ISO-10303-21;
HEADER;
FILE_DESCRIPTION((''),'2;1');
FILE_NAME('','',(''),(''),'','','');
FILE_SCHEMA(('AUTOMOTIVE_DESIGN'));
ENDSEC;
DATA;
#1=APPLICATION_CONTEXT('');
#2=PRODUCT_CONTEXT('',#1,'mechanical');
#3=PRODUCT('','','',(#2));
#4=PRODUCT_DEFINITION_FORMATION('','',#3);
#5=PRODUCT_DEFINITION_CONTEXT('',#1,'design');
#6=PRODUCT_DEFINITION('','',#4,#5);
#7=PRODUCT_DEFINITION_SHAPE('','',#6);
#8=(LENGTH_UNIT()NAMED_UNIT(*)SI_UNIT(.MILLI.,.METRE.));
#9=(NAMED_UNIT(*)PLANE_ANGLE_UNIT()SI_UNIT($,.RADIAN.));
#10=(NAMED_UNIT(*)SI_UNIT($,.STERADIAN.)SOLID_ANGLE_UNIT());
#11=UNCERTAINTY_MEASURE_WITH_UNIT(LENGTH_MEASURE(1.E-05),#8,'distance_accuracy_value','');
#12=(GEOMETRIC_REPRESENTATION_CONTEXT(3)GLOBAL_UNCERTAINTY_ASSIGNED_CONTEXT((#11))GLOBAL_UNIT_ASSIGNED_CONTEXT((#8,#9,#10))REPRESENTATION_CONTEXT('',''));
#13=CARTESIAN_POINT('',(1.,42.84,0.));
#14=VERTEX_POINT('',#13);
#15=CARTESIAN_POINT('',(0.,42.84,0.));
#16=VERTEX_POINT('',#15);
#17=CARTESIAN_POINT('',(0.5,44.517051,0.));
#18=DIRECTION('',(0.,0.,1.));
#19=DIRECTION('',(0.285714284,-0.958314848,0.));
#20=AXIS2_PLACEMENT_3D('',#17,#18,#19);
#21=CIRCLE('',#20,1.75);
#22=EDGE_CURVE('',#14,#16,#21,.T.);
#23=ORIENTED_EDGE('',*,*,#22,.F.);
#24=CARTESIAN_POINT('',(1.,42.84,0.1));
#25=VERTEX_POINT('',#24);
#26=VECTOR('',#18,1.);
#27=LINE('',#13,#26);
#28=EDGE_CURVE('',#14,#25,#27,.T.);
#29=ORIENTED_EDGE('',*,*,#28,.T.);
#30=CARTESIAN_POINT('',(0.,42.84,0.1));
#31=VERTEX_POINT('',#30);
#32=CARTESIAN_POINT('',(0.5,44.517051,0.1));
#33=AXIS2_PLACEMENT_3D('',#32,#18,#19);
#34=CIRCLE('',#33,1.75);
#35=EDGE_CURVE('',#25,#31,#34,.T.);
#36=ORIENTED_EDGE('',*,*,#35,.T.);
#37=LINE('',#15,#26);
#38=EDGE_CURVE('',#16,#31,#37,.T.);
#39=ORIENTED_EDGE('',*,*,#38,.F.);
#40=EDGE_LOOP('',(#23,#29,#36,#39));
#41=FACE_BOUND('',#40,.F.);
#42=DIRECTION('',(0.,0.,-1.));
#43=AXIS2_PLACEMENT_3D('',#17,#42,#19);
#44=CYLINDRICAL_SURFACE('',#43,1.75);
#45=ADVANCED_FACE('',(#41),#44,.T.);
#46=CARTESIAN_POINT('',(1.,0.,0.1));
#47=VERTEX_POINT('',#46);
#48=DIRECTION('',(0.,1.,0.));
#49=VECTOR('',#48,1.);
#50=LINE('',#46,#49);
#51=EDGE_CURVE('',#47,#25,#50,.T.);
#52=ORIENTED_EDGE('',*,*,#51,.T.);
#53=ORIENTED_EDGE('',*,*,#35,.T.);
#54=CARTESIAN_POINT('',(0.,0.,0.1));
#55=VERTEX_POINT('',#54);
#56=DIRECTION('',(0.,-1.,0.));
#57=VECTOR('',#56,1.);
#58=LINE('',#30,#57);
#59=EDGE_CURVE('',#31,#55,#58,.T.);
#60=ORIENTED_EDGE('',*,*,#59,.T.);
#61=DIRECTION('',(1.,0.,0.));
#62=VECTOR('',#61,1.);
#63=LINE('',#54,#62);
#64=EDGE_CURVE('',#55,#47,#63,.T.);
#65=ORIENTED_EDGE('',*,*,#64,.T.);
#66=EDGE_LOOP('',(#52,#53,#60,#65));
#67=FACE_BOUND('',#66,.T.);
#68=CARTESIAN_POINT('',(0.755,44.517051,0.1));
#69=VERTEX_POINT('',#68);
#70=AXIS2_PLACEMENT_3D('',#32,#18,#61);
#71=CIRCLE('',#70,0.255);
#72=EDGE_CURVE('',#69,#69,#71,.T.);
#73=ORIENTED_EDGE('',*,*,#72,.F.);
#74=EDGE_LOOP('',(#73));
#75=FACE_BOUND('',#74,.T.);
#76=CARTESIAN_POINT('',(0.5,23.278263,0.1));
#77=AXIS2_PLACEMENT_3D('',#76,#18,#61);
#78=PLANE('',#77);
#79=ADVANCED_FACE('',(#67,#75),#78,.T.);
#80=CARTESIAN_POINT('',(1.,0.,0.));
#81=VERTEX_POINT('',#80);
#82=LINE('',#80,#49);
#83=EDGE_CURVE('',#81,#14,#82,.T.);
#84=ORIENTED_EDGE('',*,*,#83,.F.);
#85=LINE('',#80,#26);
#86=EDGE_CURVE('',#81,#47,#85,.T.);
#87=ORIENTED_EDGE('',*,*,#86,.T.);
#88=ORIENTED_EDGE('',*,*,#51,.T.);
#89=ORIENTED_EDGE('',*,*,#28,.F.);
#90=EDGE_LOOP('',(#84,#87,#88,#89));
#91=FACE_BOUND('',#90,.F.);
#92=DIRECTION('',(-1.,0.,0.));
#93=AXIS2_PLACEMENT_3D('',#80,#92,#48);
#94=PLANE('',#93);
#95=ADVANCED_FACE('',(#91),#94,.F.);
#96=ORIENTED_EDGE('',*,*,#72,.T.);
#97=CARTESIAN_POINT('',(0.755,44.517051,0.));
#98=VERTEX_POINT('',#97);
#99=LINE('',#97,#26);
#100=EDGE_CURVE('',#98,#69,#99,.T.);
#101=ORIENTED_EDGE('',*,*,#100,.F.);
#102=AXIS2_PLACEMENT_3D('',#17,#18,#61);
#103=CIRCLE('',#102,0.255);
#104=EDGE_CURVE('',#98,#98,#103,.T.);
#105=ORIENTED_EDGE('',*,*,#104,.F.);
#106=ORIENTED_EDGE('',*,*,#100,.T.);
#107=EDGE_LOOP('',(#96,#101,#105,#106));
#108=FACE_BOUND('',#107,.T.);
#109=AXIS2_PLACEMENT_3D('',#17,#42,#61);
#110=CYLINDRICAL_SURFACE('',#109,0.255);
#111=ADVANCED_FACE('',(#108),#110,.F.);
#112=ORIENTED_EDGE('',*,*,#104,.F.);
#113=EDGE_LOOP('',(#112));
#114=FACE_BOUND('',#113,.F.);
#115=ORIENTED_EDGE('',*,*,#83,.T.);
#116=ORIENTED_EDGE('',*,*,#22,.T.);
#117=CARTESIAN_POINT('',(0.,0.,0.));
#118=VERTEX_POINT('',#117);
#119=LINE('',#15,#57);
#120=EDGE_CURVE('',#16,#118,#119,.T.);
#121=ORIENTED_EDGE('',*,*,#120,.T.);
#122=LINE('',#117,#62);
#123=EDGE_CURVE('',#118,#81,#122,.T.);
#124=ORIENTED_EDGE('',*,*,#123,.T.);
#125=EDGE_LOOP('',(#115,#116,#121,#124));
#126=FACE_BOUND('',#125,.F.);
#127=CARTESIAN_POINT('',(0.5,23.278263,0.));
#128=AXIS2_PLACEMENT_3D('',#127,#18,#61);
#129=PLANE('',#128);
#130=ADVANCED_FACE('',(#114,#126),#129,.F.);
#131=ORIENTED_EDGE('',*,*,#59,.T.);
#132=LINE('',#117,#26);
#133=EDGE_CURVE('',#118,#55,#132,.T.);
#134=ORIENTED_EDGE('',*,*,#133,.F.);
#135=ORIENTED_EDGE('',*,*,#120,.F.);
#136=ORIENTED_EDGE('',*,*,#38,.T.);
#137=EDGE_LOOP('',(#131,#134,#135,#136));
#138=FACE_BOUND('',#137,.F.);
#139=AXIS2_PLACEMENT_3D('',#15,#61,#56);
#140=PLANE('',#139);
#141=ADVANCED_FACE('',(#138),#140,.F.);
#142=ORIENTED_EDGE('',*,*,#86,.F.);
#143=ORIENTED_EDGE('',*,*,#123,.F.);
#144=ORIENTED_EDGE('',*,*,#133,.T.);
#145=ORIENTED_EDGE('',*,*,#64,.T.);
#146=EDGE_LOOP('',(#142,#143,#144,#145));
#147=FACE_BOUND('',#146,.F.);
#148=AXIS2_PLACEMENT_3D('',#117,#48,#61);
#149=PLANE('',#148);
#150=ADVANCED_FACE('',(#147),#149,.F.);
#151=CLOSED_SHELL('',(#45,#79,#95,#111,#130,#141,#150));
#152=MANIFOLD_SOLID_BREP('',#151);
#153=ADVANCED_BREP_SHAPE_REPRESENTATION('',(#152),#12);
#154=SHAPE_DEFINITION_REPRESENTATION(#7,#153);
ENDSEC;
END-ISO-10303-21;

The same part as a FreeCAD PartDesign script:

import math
import FreeCAD as App
import Part
import Sketcher

doc = App.newDocument("Part")
body = doc.addObject("PartDesign::Body", "Body")

sketch1 = body.newObject("Sketcher::SketchObject", "Sketch")
sketch1.AttachmentSupport = (doc.getObject("XY_Plane"), [""])
sketch1.MapMode = "FlatFace"
sketch1.addGeometry(Part.LineSegment(App.Vector(0, 42.84, 0), App.Vector(0, 0, 0)), False)
sketch1.addGeometry(Part.LineSegment(App.Vector(0, 0, 0), App.Vector(1, 0, 0)), False)
sketch1.addGeometry(Part.LineSegment(App.Vector(1, 0, 0), App.Vector(1, 42.84, 0)), False)
sketch1.addGeometry(Part.ArcOfCircle(Part.Circle(App.Vector(0.5, 44.517051, 0), App.Vector(0, 0, 1), 1.75), math.radians(-73.39845), math.radians(253.39845)), False)
sketch1.addGeometry(Part.Circle(App.Vector(0.5, 44.517051, 0), App.Vector(0, 0, 1), 0.255), False)
sketch1.addConstraint(Sketcher.Constraint("Coincident", 0, 2, 1, 1))
sketch1.addConstraint(Sketcher.Constraint("Coincident", 1, 2, 2, 1))
sketch1.addConstraint(Sketcher.Constraint("Coincident", 2, 2, 3, 1))
sketch1.addConstraint(Sketcher.Constraint("Coincident", 3, 2, 0, 1))
sketch1.addConstraint(Sketcher.Constraint("Vertical", 0))
sketch1.addConstraint(Sketcher.Constraint("Horizontal", 1))
sketch1.addConstraint(Sketcher.Constraint("Vertical", 2))
sketch1.addConstraint(Sketcher.Constraint("Coincident", 0, 2, -1, 1))
sketch1.addConstraint(Sketcher.Constraint("Coincident", 4, 3, 3, 3))
sketch1.addConstraint(Sketcher.Constraint("Horizontal", 2, 2, 3, 2))
sketch1.addConstraint(Sketcher.Constraint("Diameter", 4, 0.51))
sketch1.addConstraint(Sketcher.Constraint("DistanceX", 1, 1, 1, 2, 1.0))
sketch1.addConstraint(Sketcher.Constraint("Radius", 3, 1.75))
sketch1.addConstraint(Sketcher.Constraint("DistanceY", 0, 2, 0, 1, 42.84))
pad1 = body.newObject("PartDesign::Pad", "Pad")
pad1.Profile = sketch1
pad1.Length = 0.1

doc.recompute()
